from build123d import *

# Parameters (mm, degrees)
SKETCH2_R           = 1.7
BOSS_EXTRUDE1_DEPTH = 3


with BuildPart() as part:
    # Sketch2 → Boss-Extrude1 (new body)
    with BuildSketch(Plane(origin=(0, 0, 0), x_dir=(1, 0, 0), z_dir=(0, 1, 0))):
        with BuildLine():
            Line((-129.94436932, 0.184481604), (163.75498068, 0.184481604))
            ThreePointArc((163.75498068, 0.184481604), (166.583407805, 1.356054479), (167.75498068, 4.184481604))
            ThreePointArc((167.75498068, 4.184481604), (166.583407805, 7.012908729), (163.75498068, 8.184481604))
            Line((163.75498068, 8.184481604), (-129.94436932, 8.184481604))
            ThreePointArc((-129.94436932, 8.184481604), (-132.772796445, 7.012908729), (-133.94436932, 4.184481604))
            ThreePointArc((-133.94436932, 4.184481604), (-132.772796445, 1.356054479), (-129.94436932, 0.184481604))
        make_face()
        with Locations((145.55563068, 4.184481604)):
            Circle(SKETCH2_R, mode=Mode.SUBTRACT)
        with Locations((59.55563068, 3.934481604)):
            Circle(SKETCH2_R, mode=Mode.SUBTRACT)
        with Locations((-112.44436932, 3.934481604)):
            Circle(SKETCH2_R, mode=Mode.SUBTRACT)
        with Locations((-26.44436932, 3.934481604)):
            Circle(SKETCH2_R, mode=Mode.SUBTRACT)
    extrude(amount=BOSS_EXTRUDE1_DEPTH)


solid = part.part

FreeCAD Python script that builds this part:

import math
import FreeCAD as App
import Part
import Sketcher
from FreeCAD import Vector
Q = App.Units.Quantity

doc = App.newDocument("Part")
params = doc.addObject("Spreadsheet::Sheet", "Params")
for row, (alias, value) in enumerate([
    ("sketch1_radius", "4 mm"),
    ("sketch1_diameter", "3.4 mm"),
    ("pad1_length", "3 mm"),
], start=1):
    params.set(f"A{row}", alias)
    params.set(f"B{row}", "=" + value)
    params.setAlias(f"B{row}", alias)

body = doc.addObject("PartDesign::Body", "Body")

# Sketch on XZ plane
sketch1 = body.newObject("Sketcher::SketchObject", "Sketch")
sketch1.AttachmentSupport = (doc.getObject("XZ_Plane"), [""])
sketch1.MapMode = "FlatFace"
sketch1.addGeometry(Part.LineSegment(Vector(-129.944369, -0.184482, 0), Vector(163.754981, -0.184482, 0)), False)
sketch1.addGeometry(Part.ArcOfCircle(Part.Circle(Vector(163.754981, -4.184482, 0), Vector(0, 0, 1), 4), math.radians(0), math.radians(90)), False)
sketch1.addGeometry(Part.ArcOfCircle(Part.Circle(Vector(163.754981, -4.184482, 0), Vector(0, 0, 1), 4), math.radians(-90), math.radians(0)), False)
sketch1.addGeometry(Part.LineSegment(Vector(163.754981, -8.184482, 0), Vector(-129.944369, -8.184482, 0)), False)
sketch1.addGeometry(Part.ArcOfCircle(Part.Circle(Vector(-129.944369, -4.184482, 0), Vector(0, 0, 1), 4), math.radians(180), math.radians(270)), False)
sketch1.addGeometry(Part.ArcOfCircle(Part.Circle(Vector(-129.944369, -4.184482, 0), Vector(0, 0, 1), 4), math.radians(90), math.radians(180)), False)
sketch1.addGeometry(Part.Circle(Vector(-112.444369, -3.934482, 0), Vector(0, 0, 1), 1.7), False)
sketch1.addGeometry(Part.Circle(Vector(-26.444369, -3.934482, 0), Vector(0, 0, 1), 1.7), False)
sketch1.addGeometry(Part.Circle(Vector(59.555631, -3.934482, 0), Vector(0, 0, 1), 1.7), False)
sketch1.addGeometry(Part.Circle(Vector(145.555631, -4.184482, 0), Vector(0, 0, 1), 1.7), False)
sketch1.addConstraint(Sketcher.Constraint("Tangent", 0, 2, 1, 2))
sketch1.addConstraint(Sketcher.Constraint("Tangent", 1, 1, 2, 2))
sketch1.addConstraint(Sketcher.Constraint("Tangent", 2, 1, 3, 1))
sketch1.addConstraint(Sketcher.Constraint("Tangent", 3, 2, 4, 2))
sketch1.addConstraint(Sketcher.Constraint("Tangent", 4, 1, 5, 2))
sketch1.addConstraint(Sketcher.Constraint("Tangent", 5, 1, 0, 1))
sketch1.addConstraint(Sketcher.Constraint("Horizontal", 0))
sketch1.addConstraint(Sketcher.Constraint("Horizontal", 3))
sketch1.addConstraint(Sketcher.Constraint("Equal", 1, 2))
sketch1.addConstraint(Sketcher.Constraint("Equal", 2, 4))
sketch1.addConstraint(Sketcher.Constraint("Equal", 6, 7))
sketch1.addConstraint(Sketcher.Constraint("Equal", 7, 8))
sketch1.addConstraint(Sketcher.Constraint("Equal", 8, 9))
sketch1.addConstraint(Sketcher.Constraint("Horizontal", 6, 3, 7, 3))
sketch1.addConstraint(Sketcher.Constraint("Horizontal", 7, 3, 8, 3))
sketch1.addConstraint(Sketcher.Constraint("Horizontal", 5, 3, 9, 3))
sketch1.addConstraint(Sketcher.Constraint("Horizontal", 9, 3, 1, 1))
sketch1.addConstraint(Sketcher.Constraint("Horizontal", 1, 1, 4, 1))
sketch1.addConstraint(Sketcher.Constraint("Radius", 1, Q("4 mm")))
sketch1.addConstraint(Sketcher.Constraint("Diameter", 6, Q("3.4 mm")))
sketch1.addConstraint(Sketcher.Constraint("DistanceX", 6, 3, 7, 3, Q("86 mm")))
sketch1.addConstraint(Sketcher.Constraint("DistanceX", 7, 3, 8, 3, Q("86 mm")))
sketch1.addConstraint(Sketcher.Constraint("DistanceX", 8, 3, 9, 3, Q("86 mm")))
sketch1.addConstraint(Sketcher.Constraint("DistanceX", 5, 3, 6, 3, Q("17.5 mm")))
sketch1.addConstraint(Sketcher.Constraint("DistanceY", 5, 3, 6, 3, Q("0.25 mm")))
sketch1.addConstraint(Sketcher.Constraint("DistanceX", 0, 1, 0, 2, Q("293.69935 mm")))
sketch1.addConstraint(Sketcher.Constraint("DistanceX", -1, 1, 1, 3, Q("163.754981 mm")))
sketch1.addConstraint(Sketcher.Constraint("DistanceY", 1, 3, -1, 1, Q("4.184482 mm")))
sketch1.setExpression("Constraints[18]", "Params.sketch1_radius")
sketch1.setExpression("Constraints[19]", "Params.sketch1_diameter")
pad1 = body.newObject("PartDesign::Pad", "Pad")
pad1.Profile = sketch1
pad1.setExpression("Length", "Params.pad1_length")
pad1.Reversed = True

doc.recompute()
